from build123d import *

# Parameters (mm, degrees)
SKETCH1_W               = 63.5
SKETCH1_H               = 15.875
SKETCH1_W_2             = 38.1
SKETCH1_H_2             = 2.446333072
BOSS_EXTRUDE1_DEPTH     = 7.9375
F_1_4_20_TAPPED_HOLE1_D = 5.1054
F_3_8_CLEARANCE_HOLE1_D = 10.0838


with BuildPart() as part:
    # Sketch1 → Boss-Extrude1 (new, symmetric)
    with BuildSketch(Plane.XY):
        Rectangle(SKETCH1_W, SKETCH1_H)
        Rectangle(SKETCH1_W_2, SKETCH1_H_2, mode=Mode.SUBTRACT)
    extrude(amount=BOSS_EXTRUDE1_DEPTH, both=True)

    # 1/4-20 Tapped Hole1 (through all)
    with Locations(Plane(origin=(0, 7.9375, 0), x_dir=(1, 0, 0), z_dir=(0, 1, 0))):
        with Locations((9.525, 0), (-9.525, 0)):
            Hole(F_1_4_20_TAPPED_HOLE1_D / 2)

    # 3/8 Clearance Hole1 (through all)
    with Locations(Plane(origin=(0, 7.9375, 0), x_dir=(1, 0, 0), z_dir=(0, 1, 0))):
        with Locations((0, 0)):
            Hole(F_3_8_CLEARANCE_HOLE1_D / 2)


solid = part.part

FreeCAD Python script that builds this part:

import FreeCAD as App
import Part
import Sketcher
from FreeCAD import Vector
Q = App.Units.Quantity


def add_polygon(sketch, points):
    """Adds a closed chain of lines whose ends are joined by coincident constraints."""
    first, n = sketch.GeometryCount, len(points)
    for a, b in zip(points, points[1:] + points[:1]):
        sketch.addGeometry(Part.LineSegment(App.Vector(*a, 0), App.Vector(*b, 0)), False)
    for i in range(n):
        sketch.addConstraint(Sketcher.Constraint("Coincident", first + i, 2, first + (i + 1) % n, 1))

doc = App.newDocument("Part")
body = doc.addObject("PartDesign::Body", "Body")

# Sketch on XY plane
sketch1 = doc.addObject("Sketcher::SketchObject", "Sketch")
body.addObject(sketch1)
sketch1.AttachmentSupport = (doc.XY_Plane, [""])
sketch1.MapMode = "FlatFace"
add_polygon(sketch1, [(-31.75, 7.9375), (-31.75, -7.9375), (31.75, -7.9375), (31.75, 7.9375)])  # lines 0-3
add_polygon(sketch1, [(19.05, -1.223167), (-19.05, -1.223167), (-19.05, 1.223167), (19.05, 1.223167)])  # lines 4-7
sketch1.addConstraint([
    Sketcher.Constraint("Vertical", 0),
    Sketcher.Constraint("Horizontal", 1),
    Sketcher.Constraint("Vertical", 2),
    Sketcher.Constraint("Horizontal", 3),
    Sketcher.Constraint("Horizontal", 4),
    Sketcher.Constraint("Vertical", 5),
    Sketcher.Constraint("Horizontal", 6),
    Sketcher.Constraint("Vertical", 7),
    Sketcher.Constraint("Symmetric", 0, 2, 2, 2, -1, 1),
    Sketcher.Constraint("Symmetric", 4, 2, 6, 2, -1, 1),
    Sketcher.Constraint("DistanceX", 1, 1, 1, 2, Q("2.5 in")),
    Sketcher.Constraint("DistanceX", 4, 2, 4, 1, Q("1.5 in")),
    Sketcher.Constraint("DistanceY", 0, 2, 0, 1, Q("0.625 in")),
    Sketcher.Constraint("DistanceY", 5, 1, 5, 2, Q("2.446333 mm")),
])
pad1 = doc.addObject("PartDesign::Pad", "Pad")
body.addObject(pad1)
pad1.Profile = sketch1
pad1.Length = Q("0.625 in")
pad1.Midplane = True

# Sketch on XZ plane
sketch2 = doc.addObject("Sketcher::SketchObject", "Sketch001")
body.addObject(sketch2)
sketch2.AttachmentSupport = (doc.XZ_Plane, [""])
sketch2.MapMode = "FlatFace"
sketch2.AttachmentOffset = App.Placement(Vector(0, 0, -0.3125 * 25.4), App.Rotation())
sketch2.addGeometry([
    Part.Circle(Vector(9.525, 0, 0), Vector(0, 0, 1), 2.5527),
    Part.Circle(Vector(-9.525, 0, 0), Vector(0, 0, 1), 2.5527),
], False)
sketch2.addConstraint([
    Sketcher.Constraint("Equal", 0, 1),
    Sketcher.Constraint("Symmetric", 0, 3, 1, 3, -1, 1),
    Sketcher.Constraint("PointOnObject", 0, 3, -1),
    Sketcher.Constraint("Diameter", 0, Q("0.201 in")),
    Sketcher.Constraint("DistanceX", 1, 3, 0, 3, Q("0.75 in")),
])
doc.recompute()
hole = doc.addObject("PartDesign::Hole", "Hole")
body.addObject(hole)
hole.Profile = sketch2
hole.ThreadType = "None"
hole.Diameter = Q("0.201 in")
hole.DepthType = "ThroughAll"
hole.Reversed = True

# Sketch on XZ plane
sketch3 = doc.addObject("Sketcher::SketchObject", "Sketch002")
body.addObject(sketch3)
sketch3.AttachmentSupport = (doc.XZ_Plane, [""])
sketch3.MapMode = "FlatFace"
sketch3.AttachmentOffset = App.Placement(Vector(0, 0, -0.3125 * 25.4), App.Rotation())
sketch3.addGeometry(Part.Circle(Vector(0, 0, 0), Vector(0, 0, 1), 5.0419), False)
sketch3.addConstraint([
    Sketcher.Constraint("Coincident", 0, 3, -1, 1),
    Sketcher.Constraint("Diameter", 0, Q("0.397 in")),
])
doc.recompute()
hole2 = doc.addObject("PartDesign::Hole", "Hole001")
body.addObject(hole2)
hole2.Profile = sketch3
hole2.ThreadType = "None"
hole2.Diameter = Q("0.397 in")
hole2.DepthType = "ThroughAll"
hole2.Reversed = True

doc.recompute()
